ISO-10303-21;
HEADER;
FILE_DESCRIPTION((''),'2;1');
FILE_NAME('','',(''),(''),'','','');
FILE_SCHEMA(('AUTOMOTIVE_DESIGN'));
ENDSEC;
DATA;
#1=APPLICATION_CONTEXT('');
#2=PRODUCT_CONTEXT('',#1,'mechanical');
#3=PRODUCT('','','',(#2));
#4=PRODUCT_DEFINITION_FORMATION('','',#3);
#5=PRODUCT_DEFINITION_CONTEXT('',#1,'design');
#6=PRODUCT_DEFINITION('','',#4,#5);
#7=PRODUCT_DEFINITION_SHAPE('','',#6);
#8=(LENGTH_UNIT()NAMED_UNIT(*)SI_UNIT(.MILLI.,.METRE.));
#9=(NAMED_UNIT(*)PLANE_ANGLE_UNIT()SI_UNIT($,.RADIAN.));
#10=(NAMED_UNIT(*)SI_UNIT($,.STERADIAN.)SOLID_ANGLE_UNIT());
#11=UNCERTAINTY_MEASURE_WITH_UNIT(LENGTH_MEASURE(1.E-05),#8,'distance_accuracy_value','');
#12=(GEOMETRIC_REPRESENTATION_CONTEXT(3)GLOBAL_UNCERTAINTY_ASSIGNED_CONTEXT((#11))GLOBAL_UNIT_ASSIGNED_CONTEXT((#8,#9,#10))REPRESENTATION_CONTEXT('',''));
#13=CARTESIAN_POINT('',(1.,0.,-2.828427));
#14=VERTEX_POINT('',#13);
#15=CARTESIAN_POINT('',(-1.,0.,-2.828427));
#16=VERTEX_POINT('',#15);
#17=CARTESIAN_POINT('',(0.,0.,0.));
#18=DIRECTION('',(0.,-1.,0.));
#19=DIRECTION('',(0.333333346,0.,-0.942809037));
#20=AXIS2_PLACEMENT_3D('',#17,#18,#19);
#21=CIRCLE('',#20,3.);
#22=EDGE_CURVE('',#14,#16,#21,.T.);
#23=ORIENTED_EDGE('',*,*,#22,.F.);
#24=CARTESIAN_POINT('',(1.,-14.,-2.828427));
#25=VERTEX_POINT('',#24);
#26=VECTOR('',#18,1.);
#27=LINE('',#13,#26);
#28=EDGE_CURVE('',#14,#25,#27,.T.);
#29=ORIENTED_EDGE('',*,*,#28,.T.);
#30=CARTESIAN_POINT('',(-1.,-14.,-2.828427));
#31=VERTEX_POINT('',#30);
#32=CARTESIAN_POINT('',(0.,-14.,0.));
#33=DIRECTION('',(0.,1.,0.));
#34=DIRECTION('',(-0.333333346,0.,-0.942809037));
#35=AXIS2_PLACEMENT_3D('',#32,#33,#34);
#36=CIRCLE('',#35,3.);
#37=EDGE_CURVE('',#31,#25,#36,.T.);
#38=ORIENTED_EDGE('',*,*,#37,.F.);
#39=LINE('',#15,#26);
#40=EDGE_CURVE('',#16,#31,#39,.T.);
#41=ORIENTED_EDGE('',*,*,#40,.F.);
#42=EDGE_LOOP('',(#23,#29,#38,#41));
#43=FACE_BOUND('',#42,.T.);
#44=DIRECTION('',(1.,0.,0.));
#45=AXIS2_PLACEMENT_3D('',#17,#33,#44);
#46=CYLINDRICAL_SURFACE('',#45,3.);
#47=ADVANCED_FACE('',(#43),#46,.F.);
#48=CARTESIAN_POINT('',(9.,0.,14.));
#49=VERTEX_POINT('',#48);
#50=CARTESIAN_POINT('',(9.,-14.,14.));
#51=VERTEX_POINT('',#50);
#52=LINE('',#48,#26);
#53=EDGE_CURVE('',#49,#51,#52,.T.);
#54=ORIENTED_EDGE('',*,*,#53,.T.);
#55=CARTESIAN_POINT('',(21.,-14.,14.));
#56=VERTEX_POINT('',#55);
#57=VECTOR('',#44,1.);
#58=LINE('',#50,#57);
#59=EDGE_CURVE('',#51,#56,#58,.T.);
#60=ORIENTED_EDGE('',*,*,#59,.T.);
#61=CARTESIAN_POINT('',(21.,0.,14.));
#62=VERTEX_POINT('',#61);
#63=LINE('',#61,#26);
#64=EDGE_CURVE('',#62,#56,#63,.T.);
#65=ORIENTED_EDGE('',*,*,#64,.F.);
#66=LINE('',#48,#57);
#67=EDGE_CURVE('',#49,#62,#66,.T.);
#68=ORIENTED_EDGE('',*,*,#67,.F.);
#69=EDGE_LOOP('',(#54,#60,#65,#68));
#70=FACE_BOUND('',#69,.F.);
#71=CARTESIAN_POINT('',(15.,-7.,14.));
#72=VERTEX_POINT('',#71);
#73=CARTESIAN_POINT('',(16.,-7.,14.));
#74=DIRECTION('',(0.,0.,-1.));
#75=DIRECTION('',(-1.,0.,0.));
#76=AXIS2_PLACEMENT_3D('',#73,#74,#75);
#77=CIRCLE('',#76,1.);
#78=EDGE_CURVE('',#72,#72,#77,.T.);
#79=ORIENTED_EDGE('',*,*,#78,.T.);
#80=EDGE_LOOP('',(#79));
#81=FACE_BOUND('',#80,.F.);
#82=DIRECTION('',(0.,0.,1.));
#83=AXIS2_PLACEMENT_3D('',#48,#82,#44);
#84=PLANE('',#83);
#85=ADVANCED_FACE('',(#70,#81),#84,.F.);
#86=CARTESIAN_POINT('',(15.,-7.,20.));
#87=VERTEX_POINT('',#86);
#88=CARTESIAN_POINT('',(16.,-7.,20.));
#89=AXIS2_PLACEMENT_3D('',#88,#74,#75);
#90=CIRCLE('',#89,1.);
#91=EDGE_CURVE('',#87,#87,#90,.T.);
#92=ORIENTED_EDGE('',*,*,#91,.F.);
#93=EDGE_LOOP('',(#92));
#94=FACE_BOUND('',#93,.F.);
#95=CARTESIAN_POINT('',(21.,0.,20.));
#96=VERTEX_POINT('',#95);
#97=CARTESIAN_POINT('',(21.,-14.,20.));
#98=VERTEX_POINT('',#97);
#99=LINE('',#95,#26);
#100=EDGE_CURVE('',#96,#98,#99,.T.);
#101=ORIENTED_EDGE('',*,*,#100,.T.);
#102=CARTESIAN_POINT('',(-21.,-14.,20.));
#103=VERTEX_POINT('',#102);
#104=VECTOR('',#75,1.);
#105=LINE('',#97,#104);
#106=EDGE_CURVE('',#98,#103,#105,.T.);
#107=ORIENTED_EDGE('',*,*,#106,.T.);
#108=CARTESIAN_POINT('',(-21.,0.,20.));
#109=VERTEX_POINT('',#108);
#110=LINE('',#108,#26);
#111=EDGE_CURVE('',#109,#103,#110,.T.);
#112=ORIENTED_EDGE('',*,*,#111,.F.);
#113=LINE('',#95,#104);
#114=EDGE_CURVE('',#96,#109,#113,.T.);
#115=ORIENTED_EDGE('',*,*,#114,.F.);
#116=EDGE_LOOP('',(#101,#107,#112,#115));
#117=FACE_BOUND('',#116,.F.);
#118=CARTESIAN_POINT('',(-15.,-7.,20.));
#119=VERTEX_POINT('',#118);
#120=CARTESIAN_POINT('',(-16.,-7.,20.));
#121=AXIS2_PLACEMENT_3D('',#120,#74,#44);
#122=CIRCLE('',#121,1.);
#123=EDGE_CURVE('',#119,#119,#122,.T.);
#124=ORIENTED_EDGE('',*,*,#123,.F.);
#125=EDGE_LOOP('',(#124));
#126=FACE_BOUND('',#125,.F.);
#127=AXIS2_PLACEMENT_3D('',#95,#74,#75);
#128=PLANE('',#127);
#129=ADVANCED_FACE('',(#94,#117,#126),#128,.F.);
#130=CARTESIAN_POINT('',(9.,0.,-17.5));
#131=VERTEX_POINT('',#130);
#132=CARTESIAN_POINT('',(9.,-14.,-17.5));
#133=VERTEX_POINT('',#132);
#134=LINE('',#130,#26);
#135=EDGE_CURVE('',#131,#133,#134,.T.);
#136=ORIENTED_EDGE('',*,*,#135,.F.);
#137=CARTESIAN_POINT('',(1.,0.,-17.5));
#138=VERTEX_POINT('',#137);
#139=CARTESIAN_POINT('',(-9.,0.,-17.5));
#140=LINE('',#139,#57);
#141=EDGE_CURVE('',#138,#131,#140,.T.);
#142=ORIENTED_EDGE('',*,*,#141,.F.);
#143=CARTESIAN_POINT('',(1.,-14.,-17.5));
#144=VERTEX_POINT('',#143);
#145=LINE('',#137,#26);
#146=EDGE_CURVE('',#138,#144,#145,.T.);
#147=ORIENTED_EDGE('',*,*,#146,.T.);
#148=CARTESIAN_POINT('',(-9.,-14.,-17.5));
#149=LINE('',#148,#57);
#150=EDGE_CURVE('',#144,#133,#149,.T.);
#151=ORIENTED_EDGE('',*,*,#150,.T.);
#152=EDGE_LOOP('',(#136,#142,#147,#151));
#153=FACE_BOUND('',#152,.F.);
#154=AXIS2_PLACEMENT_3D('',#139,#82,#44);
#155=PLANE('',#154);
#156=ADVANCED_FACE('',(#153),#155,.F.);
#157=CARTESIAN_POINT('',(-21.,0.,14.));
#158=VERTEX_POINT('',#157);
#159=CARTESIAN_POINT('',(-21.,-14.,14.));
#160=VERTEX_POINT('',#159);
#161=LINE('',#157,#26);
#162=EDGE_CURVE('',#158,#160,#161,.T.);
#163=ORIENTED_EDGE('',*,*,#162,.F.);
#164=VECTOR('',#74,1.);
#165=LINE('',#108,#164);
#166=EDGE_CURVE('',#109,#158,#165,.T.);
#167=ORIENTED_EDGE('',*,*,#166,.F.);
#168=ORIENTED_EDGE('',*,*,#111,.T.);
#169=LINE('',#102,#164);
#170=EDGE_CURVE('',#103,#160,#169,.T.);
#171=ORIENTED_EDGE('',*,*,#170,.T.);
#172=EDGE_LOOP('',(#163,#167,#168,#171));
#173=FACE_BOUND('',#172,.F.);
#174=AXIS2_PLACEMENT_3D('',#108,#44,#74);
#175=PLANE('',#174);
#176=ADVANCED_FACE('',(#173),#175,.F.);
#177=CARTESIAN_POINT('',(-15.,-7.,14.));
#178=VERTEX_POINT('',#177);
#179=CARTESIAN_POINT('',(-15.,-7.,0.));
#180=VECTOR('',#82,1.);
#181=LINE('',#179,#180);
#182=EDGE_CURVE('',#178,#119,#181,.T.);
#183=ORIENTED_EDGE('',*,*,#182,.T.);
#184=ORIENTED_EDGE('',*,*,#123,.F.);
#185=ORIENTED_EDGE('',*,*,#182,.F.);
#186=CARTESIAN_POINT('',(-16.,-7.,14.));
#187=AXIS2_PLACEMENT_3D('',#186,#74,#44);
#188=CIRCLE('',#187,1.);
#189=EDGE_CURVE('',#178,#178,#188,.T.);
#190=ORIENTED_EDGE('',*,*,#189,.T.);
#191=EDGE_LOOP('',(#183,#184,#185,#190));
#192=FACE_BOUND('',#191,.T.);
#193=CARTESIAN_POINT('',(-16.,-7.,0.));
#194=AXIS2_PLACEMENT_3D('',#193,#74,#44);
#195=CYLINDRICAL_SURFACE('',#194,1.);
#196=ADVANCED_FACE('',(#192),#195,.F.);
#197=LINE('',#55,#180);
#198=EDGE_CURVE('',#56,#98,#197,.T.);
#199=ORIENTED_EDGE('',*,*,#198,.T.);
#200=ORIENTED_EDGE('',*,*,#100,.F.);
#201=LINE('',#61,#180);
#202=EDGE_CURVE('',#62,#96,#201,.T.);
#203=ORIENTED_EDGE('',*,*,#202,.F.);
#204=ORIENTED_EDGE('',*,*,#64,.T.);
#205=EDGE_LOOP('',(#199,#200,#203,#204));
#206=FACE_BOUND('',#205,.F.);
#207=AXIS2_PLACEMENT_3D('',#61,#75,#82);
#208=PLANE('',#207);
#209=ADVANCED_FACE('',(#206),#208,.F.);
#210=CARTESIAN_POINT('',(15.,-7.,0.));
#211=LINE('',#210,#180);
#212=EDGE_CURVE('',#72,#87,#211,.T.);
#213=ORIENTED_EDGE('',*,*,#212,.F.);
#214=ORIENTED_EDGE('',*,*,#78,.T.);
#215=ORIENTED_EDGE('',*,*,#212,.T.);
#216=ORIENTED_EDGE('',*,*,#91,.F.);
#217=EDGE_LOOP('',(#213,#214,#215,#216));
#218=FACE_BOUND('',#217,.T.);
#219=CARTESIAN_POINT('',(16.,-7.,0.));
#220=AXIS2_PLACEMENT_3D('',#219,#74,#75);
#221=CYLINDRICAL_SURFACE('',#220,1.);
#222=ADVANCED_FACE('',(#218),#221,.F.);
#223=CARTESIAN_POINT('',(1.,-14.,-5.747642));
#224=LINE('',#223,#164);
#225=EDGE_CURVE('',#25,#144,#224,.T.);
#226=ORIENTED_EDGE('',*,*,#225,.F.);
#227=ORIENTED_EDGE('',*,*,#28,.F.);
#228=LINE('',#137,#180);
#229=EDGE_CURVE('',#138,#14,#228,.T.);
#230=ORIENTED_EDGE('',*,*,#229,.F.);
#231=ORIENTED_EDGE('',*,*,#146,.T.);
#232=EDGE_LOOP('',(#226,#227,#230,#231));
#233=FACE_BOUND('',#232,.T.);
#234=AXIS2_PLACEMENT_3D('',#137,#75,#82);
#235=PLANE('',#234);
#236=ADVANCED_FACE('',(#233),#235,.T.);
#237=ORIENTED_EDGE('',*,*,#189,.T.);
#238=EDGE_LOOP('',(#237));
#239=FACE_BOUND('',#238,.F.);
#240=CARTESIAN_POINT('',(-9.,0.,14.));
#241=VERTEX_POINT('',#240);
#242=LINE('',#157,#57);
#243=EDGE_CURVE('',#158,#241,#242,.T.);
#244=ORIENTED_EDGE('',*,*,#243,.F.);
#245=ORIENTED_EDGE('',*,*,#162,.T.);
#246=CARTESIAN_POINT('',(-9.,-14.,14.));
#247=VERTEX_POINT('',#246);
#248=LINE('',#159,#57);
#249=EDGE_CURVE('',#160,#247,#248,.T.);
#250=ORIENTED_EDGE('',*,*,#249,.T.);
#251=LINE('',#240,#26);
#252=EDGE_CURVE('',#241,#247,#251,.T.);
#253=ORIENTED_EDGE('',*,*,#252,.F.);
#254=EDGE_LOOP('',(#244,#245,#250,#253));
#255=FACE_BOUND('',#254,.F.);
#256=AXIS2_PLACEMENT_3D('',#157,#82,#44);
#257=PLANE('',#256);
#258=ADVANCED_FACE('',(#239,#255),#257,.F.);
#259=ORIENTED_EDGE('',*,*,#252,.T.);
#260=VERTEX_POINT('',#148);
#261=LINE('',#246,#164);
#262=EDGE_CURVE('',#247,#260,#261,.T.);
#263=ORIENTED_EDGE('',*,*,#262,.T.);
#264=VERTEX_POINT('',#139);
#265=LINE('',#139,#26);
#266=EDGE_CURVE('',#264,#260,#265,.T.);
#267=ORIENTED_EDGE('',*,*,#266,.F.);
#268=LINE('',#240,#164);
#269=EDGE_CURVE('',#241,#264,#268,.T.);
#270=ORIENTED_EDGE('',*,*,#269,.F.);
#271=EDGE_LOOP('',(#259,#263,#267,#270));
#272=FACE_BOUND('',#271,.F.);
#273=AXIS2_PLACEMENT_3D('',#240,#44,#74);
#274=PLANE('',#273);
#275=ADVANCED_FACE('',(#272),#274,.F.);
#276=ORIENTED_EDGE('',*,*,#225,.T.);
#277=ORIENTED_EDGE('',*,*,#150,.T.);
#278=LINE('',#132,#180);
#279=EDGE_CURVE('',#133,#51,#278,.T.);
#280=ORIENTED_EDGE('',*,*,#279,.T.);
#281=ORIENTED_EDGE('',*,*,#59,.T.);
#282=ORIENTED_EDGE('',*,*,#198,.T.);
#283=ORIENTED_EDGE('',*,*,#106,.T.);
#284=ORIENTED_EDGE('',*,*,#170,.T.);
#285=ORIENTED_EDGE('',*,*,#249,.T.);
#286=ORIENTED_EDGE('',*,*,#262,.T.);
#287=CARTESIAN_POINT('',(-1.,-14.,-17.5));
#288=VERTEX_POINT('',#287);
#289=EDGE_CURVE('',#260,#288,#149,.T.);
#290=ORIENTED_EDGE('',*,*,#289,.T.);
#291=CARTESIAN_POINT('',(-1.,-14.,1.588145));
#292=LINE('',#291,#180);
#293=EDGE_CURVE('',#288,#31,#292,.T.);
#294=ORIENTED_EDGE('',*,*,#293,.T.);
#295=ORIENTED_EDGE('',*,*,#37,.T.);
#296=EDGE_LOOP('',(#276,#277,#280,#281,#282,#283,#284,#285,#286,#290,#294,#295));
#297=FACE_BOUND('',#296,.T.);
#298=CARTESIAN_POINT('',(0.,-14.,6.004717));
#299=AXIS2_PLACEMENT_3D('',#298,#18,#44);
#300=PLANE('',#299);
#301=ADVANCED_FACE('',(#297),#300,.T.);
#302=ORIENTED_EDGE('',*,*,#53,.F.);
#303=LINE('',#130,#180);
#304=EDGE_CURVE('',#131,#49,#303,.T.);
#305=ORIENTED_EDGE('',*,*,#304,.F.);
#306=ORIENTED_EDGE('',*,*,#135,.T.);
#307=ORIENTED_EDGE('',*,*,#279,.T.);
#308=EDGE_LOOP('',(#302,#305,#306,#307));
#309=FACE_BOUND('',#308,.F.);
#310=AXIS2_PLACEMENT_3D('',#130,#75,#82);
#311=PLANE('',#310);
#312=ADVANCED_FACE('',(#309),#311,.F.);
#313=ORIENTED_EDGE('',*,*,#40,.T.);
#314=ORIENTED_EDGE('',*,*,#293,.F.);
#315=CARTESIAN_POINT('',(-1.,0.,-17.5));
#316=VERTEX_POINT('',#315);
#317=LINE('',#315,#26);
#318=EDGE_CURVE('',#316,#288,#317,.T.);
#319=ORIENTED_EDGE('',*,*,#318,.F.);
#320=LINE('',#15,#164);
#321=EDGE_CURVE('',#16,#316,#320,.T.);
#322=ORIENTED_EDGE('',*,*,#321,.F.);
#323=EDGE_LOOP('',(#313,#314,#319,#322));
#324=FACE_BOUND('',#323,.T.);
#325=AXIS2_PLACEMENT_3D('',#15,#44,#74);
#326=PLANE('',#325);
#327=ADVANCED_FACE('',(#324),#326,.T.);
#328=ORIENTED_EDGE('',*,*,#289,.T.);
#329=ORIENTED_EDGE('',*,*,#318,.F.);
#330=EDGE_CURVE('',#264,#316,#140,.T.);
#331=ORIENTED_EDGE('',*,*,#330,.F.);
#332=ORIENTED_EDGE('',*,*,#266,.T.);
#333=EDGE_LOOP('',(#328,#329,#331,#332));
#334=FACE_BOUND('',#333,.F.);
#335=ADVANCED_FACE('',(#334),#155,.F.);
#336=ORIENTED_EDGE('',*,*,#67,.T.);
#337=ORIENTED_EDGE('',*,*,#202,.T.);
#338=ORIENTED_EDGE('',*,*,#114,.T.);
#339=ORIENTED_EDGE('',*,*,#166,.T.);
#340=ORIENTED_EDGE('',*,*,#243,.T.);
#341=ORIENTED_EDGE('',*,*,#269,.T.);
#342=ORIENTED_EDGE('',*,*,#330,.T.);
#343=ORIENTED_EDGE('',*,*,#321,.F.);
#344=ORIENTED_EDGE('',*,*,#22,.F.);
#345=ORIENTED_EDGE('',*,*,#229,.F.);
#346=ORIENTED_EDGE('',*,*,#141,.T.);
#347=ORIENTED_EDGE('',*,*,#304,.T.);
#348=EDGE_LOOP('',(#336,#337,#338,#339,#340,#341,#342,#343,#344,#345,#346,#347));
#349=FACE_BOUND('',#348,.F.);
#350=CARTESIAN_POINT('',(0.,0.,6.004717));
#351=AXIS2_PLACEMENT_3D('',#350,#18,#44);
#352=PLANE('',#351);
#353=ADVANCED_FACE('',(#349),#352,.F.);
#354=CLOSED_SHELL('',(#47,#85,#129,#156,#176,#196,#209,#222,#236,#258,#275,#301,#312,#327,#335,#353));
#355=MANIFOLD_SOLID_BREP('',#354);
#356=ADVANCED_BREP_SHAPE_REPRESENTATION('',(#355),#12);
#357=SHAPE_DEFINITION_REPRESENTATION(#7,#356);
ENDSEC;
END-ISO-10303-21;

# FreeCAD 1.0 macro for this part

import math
import FreeCAD as App
import Part
import Sketcher
from FreeCAD import Vector
Q = App.Units.Quantity

doc = App.newDocument("Part")
body = doc.addObject("PartDesign::Body", "Body")

# Sketch on XZ plane
sketch1 = doc.addObject("Sketcher::SketchObject", "Sketch")
body.addObject(sketch1)
sketch1.AttachmentSupport = (doc.XZ_Plane, [""])
sketch1.MapMode = "FlatFace"
sketch1.addGeometry(Part.LineSegment(Vector(21, 20, 0), Vector(-21, 20, 0)), False)
sketch1.addGeometry(Part.LineSegment(Vector(-21, 20, 0), Vector(-21, 14, 0)), False)
sketch1.addGeometry(Part.LineSegment(Vector(-21, 14, 0), Vector(-9, 14, 0)), False)
sketch1.addGeometry(Part.LineSegment(Vector(-9, 14, 0), Vector(-9, -17.5, 0)), False)
sketch1.addGeometry(Part.LineSegment(Vector(-9, -17.5, 0), Vector(9, -17.5, 0)), False)
sketch1.addGeometry(Part.LineSegment(Vector(9, -17.5, 0), Vector(9, 14, 0)), False)
sketch1.addGeometry(Part.LineSegment(Vector(9, 14, 0), Vector(21, 14, 0)), False)
sketch1.addGeometry(Part.LineSegment(Vector(21, 14, 0), Vector(21, 20, 0)), False)
sketch1.addGeometry(Part.Circle(Vector(0, 0, 0), Vector(0, 0, 1), 3), False)
sketch1.addConstraint(Sketcher.Constraint("Coincident", 0, 2, 1, 1))
sketch1.addConstraint(Sketcher.Constraint("Coincident", 1, 2, 2, 1))
sketch1.addConstraint(Sketcher.Constraint("Coincident", 2, 2, 3, 1))
sketch1.addConstraint(Sketcher.Constraint("Coincident", 3, 2, 4, 1))
sketch1.addConstraint(Sketcher.Constraint("Coincident", 4, 2, 5, 1))
sketch1.addConstraint(Sketcher.Constraint("Coincident", 5, 2, 6, 1))
sketch1.addConstraint(Sketcher.Constraint("Coincident", 6, 2, 7, 1))
sketch1.addConstraint(Sketcher.Constraint("Coincident", 7, 2, 0, 1))
sketch1.addConstraint(Sketcher.Constraint("Horizontal", 0))
sketch1.addConstraint(Sketcher.Constraint("Vertical", 1))
sketch1.addConstraint(Sketcher.Constraint("Horizontal", 2))
sketch1.addConstraint(Sketcher.Constraint("Vertical", 3))
sketch1.addConstraint(Sketcher.Constraint("Horizontal", 4))
sketch1.addConstraint(Sketcher.Constraint("Vertical", 5))
sketch1.addConstraint(Sketcher.Constraint("Horizontal", 6))
sketch1.addConstraint(Sketcher.Constraint("Vertical", 7))
sketch1.addConstraint(Sketcher.Constraint("Coincident", 8, 3, -1, 1))
sketch1.addConstraint(Sketcher.Constraint("Symmetric", 2, 2, 5, 2, -2))
sketch1.addConstraint(Sketcher.Constraint("Equal", 2, 6))
sketch1.addConstraint(Sketcher.Constraint("Diameter", 8, Q("6 mm")))
sketch1.addConstraint(Sketcher.Constraint("DistanceX", 0, 2, 0, 1, Q("42 mm")))
sketch1.addConstraint(Sketcher.Constraint("DistanceX", 2, 1, 2, 2, Q("12 mm")))
sketch1.addConstraint(Sketcher.Constraint("DistanceY", 1, 2, 1, 1, Q("6 mm")))
sketch1.addConstraint(Sketcher.Constraint("DistanceY", 3, 2, 3, 1, Q("31.5 mm")))
sketch1.addConstraint(Sketcher.Constraint("DistanceY", -1, 1, 0, 2, Q("20 mm")))
pad1 = doc.addObject("PartDesign::Pad", "Pad")
body.addObject(pad1)
pad1.Profile = sketch1
pad1.Length = 14

# Sketch on XZ plane
sketch2 = doc.addObject("Sketcher::SketchObject", "Sketch001")
body.addObject(sketch2)
sketch2.AttachmentSupport = (doc.XZ_Plane, [""])
sketch2.MapMode = "FlatFace"
sketch2.addGeometry(Part.LineSegment(Vector(-1, -17.5, 0), Vector(1, -17.5, 0)), False)
sketch2.addGeometry(Part.LineSegment(Vector(1, -17.5, 0), Vector(1, -2.8, 0)), False)
sketch2.addGeometry(Part.ArcOfCircle(Part.Circle(Vector(0, 0, 0), Vector(0, 0, 1), 3), math.radians(-109), math.radians(-71)), False)
sketch2.addGeometry(Part.LineSegment(Vector(-1, -2.8, 0), Vector(-1, -17.5, 0)), False)
sketch2.addConstraint(Sketcher.Constraint("Coincident", 0, 2, 1, 1))
sketch2.addConstraint(Sketcher.Constraint("Coincident", 1, 2, 2, 2))
sketch2.addConstraint(Sketcher.Constraint("Coincident", 2, 1, 3, 1))
sketch2.addConstraint(Sketcher.Constraint("Coincident", 3, 2, 0, 1))
sketch2.addConstraint(Sketcher.Constraint("Horizontal", 0))
sketch2.addConstraint(Sketcher.Constraint("Vertical", 1))
sketch2.addConstraint(Sketcher.Constraint("Vertical", 3))
sketch2.addConstraint(Sketcher.Constraint("Coincident", 2, 3, -1, 1))
sketch2.addConstraint(Sketcher.Constraint("Horizontal", 1, 2, 2, 1))
sketch2.addConstraint(Sketcher.Constraint("DistanceX", 0, 1, 0, 2, Q("2 mm")))
sketch2.addConstraint(Sketcher.Constraint("DistanceY", 0, 2, -1, 1, Q("17.5 mm")))
sketch2.addConstraint(Sketcher.Constraint("Radius", 2, Q("2.999998 mm")))
pocket1 = doc.addObject("PartDesign::Pocket", "Pocket")
body.addObject(pocket1)
pocket1.Profile = sketch2
pocket1.Length = 25
pocket1.Reversed = True

# Sketch on XY plane
sketch3 = doc.addObject("Sketcher::SketchObject", "Sketch002")
body.addObject(sketch3)
sketch3.AttachmentSupport = (doc.XY_Plane, [""])
sketch3.MapMode = "FlatFace"
sketch3.addGeometry(Part.Circle(Vector(-16, -7, 0), Vector(0, 0, 1), 1), False)
sketch3.addGeometry(Part.Circle(Vector(16, -7, 0), Vector(0, 0, 1), 1), False)
sketch3.addConstraint(Sketcher.Constraint("Equal", 0, 1))
sketch3.addConstraint(Sketcher.Constraint("Symmetric", 0, 3, 1, 3, -2))
sketch3.addConstraint(Sketcher.Constraint("Diameter", 0, Q("2 mm")))
sketch3.addConstraint(Sketcher.Constraint("DistanceX", 0, 3, -1, 1, Q("16 mm")))
sketch3.addConstraint(Sketcher.Constraint("DistanceY", 0, 3, -1, 1, Q("7 mm")))
pocket2 = doc.addObject("PartDesign::Pocket", "Pocket001")
body.addObject(pocket2)
pocket2.Profile = sketch3
pocket2.Type = "ThroughAll"
pocket2.Reversed = True

doc.recompute()
